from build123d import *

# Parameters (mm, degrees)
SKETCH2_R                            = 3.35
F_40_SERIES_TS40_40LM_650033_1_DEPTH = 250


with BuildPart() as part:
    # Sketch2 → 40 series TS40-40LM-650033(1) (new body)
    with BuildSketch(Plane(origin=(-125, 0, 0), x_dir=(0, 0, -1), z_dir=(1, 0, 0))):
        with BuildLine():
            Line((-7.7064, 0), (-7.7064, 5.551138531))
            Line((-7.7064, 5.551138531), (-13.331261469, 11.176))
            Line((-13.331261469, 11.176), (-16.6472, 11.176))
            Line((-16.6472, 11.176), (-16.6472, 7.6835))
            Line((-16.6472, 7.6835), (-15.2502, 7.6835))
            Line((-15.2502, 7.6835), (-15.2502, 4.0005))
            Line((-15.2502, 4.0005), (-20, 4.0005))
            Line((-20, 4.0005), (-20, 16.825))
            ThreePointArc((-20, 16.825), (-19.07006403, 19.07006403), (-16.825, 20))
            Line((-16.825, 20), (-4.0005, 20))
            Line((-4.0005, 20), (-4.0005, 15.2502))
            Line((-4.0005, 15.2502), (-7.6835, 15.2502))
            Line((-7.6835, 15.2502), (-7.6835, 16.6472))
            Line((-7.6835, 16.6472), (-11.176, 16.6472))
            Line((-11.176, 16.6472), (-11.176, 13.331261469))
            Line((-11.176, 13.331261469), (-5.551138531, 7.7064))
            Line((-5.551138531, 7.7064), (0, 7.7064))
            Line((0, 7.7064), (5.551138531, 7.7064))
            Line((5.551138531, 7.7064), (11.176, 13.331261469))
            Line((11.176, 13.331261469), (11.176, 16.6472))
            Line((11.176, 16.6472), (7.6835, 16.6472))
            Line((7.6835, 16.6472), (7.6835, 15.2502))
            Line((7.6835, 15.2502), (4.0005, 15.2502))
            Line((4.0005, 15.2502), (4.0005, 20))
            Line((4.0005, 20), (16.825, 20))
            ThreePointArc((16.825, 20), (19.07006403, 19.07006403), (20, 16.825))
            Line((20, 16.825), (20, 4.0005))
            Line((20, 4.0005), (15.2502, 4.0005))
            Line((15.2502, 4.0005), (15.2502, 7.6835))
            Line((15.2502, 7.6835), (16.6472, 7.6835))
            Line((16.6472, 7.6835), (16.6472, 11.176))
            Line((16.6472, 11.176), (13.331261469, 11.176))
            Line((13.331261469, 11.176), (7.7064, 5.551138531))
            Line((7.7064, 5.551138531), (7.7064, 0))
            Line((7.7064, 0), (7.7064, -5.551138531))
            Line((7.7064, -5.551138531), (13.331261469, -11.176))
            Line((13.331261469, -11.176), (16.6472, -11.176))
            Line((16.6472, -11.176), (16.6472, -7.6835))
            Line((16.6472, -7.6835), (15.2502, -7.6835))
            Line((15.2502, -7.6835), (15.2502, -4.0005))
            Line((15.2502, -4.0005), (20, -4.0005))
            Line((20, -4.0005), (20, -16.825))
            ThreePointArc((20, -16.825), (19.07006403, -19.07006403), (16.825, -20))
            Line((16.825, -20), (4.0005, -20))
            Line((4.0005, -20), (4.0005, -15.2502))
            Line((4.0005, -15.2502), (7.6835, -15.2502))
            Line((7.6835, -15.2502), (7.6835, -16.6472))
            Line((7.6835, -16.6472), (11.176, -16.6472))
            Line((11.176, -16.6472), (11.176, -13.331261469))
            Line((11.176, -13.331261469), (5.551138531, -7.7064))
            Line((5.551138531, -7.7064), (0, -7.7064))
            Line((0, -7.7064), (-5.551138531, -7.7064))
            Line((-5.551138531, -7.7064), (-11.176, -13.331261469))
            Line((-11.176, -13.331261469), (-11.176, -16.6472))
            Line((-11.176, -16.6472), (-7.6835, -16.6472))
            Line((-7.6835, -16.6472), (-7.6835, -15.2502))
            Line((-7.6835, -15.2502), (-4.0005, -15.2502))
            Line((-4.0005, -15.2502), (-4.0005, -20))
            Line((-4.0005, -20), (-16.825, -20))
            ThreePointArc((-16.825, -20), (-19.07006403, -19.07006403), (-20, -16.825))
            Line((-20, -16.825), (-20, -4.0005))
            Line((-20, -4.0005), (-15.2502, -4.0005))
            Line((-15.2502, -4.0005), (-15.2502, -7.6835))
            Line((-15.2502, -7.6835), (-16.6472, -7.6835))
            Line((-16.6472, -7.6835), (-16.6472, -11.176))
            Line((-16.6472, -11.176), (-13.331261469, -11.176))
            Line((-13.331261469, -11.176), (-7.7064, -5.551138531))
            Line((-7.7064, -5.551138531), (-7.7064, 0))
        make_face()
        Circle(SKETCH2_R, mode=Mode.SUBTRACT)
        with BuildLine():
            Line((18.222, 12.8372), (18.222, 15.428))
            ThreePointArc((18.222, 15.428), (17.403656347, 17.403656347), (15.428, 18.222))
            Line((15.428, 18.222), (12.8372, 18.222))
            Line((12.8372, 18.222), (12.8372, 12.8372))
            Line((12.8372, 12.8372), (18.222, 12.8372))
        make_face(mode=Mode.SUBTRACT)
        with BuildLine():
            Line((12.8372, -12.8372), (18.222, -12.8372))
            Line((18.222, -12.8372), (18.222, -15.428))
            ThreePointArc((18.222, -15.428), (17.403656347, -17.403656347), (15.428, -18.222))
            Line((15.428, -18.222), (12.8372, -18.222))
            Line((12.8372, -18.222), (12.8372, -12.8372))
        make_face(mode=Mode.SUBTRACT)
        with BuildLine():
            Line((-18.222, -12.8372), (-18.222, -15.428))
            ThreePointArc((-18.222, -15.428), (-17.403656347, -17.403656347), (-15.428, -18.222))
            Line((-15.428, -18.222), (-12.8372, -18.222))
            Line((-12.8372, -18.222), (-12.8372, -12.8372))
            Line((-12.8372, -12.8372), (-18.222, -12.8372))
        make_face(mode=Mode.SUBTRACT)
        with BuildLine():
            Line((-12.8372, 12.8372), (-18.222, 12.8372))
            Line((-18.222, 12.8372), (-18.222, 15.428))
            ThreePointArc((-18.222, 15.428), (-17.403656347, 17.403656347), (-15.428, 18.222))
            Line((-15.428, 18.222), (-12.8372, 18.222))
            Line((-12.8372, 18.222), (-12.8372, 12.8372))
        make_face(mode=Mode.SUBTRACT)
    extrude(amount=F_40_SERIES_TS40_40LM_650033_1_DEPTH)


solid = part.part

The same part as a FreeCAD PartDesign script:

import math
import FreeCAD as App
import Part
import Sketcher
from FreeCAD import Vector
Q = App.Units.Quantity

doc = App.newDocument("Part")
body = doc.addObject("PartDesign::Body", "Body")

sketch1 = body.newObject("Sketcher::SketchObject", "Sketch")
sketch1.AttachmentSupport = (doc.getObject("YZ_Plane"), [""])
sketch1.MapMode = "FlatFace"
sketch1.AttachmentOffset = App.Placement(Vector(0, 0, -125), App.Rotation())
sketch1.addGeometry([
    Part.LineSegment(Vector(11.2, 13.3, 0), Vector(5.6, 7.7, 0)),
    Part.LineSegment(Vector(5.6, 7.7, 0), Vector(-5.6, 7.7, 0)),
    Part.LineSegment(Vector(-5.6, 7.7, 0), Vector(-11.2, 13.3, 0)),
    Part.LineSegment(Vector(-11.2, 13.3, 0), Vector(-11.2, 16.6, 0)),
    Part.LineSegment(Vector(-11.2, 16.6, 0), Vector(-7.7, 16.6, 0)),
    Part.LineSegment(Vector(-7.7, 16.6, 0), Vector(-7.7, 15.3, 0)),
    Part.LineSegment(Vector(-7.7, 15.3, 0), Vector(-4, 15.3, 0)),
    Part.LineSegment(Vector(-4, 15.3, 0), Vector(-4, 20, 0)),
    Part.LineSegment(Vector(-4, 20, 0), Vector(-16.8, 20, 0)),
    Part.ArcOfCircle(Part.Circle(Vector(-16.8, 16.8, 0), Vector(0, 0, 1), 3.2), math.radians(90), math.radians(180)),
    Part.LineSegment(Vector(-20, 16.8, 0), Vector(-20, 4, 0)),
    Part.LineSegment(Vector(-20, 4, 0), Vector(-15.3, 4, 0)),
    Part.LineSegment(Vector(-15.3, 4, 0), Vector(-15.3, 7.7, 0)),
    Part.LineSegment(Vector(-15.3, 7.7, 0), Vector(-16.6, 7.7, 0)),
    Part.LineSegment(Vector(-16.6, 7.7, 0), Vector(-16.6, 11.2, 0)),
    Part.LineSegment(Vector(-16.6, 11.2, 0), Vector(-13.3, 11.2, 0)),
    Part.LineSegment(Vector(-13.3, 11.2, 0), Vector(-7.7, 5.6, 0)),
    Part.LineSegment(Vector(-7.7, 5.6, 0), Vector(-7.7, -5.6, 0)),
    Part.LineSegment(Vector(-7.7, -5.6, 0), Vector(-13.3, -11.2, 0)),
    Part.LineSegment(Vector(-13.3, -11.2, 0), Vector(-16.6, -11.2, 0)),
    Part.LineSegment(Vector(-16.6, -11.2, 0), Vector(-16.6, -7.7, 0)),
    Part.LineSegment(Vector(-16.6, -7.7, 0), Vector(-15.3, -7.7, 0)),
    Part.LineSegment(Vector(-15.3, -7.7, 0), Vector(-15.3, -4, 0)),
    Part.LineSegment(Vector(-15.3, -4, 0), Vector(-20, -4, 0)),
    Part.LineSegment(Vector(-20, -4, 0), Vector(-20, -16.8, 0)),
    Part.ArcOfCircle(Part.Circle(Vector(-16.8, -16.8, 0), Vector(0, 0, 1), 3.2), math.radians(-180), math.radians(-90)),
    Part.LineSegment(Vector(-16.8, -20, 0), Vector(-4, -20, 0)),
    Part.LineSegment(Vector(-4, -20, 0), Vector(-4, -15.3, 0)),
    Part.LineSegment(Vector(-4, -15.3, 0), Vector(-7.7, -15.3, 0)),
    Part.LineSegment(Vector(-7.7, -15.3, 0), Vector(-7.7, -16.6, 0)),
    Part.LineSegment(Vector(-7.7, -16.6, 0), Vector(-11.2, -16.6, 0)),
    Part.LineSegment(Vector(-11.2, -16.6, 0), Vector(-11.2, -13.3, 0)),
    Part.LineSegment(Vector(-11.2, -13.3, 0), Vector(-5.6, -7.7, 0)),
    Part.LineSegment(Vector(-5.6, -7.7, 0), Vector(5.6, -7.7, 0)),
    Part.LineSegment(Vector(5.6, -7.7, 0), Vector(11.2, -13.3, 0)),
    Part.LineSegment(Vector(11.2, -13.3, 0), Vector(11.2, -16.6, 0)),
    Part.LineSegment(Vector(11.2, -16.6, 0), Vector(7.7, -16.6, 0)),
    Part.LineSegment(Vector(7.7, -16.6, 0), Vector(7.7, -15.3, 0)),
    Part.LineSegment(Vector(7.7, -15.3, 0), Vector(4, -15.3, 0)),
    Part.LineSegment(Vector(4, -15.3, 0), Vector(4, -20, 0)),
    Part.LineSegment(Vector(4, -20, 0), Vector(16.8, -20, 0)),
    Part.ArcOfCircle(Part.Circle(Vector(16.8, -16.8, 0), Vector(0, 0, 1), 3.2), math.radians(-90), math.radians(0)),
    Part.LineSegment(Vector(20, -16.8, 0), Vector(20, -4, 0)),
    Part.LineSegment(Vector(20, -4, 0), Vector(15.3, -4, 0)),
    Part.LineSegment(Vector(15.3, -4, 0), Vector(15.3, -7.7, 0)),
    Part.LineSegment(Vector(15.3, -7.7, 0), Vector(16.6, -7.7, 0)),
    Part.LineSegment(Vector(16.6, -7.7, 0), Vector(16.6, -11.2, 0)),
    Part.LineSegment(Vector(16.6, -11.2, 0), Vector(13.3, -11.2, 0)),
    Part.LineSegment(Vector(13.3, -11.2, 0), Vector(7.7, -5.6, 0)),
    Part.LineSegment(Vector(7.7, -5.6, 0), Vector(7.7, 5.6, 0)),
    Part.LineSegment(Vector(7.7, 5.6, 0), Vector(13.3, 11.2, 0)),
    Part.LineSegment(Vector(13.3, 11.2, 0), Vector(16.6, 11.2, 0)),
    Part.LineSegment(Vector(16.6, 11.2, 0), Vector(16.6, 7.7, 0)),
    Part.LineSegment(Vector(16.6, 7.7, 0), Vector(15.3, 7.7, 0)),
    Part.LineSegment(Vector(15.3, 7.7, 0), Vector(15.3, 4, 0)),
    Part.LineSegment(Vector(15.3, 4, 0), Vector(20, 4, 0)),
    Part.LineSegment(Vector(20, 4, 0), Vector(20, 16.8, 0)),
    Part.ArcOfCircle(Part.Circle(Vector(16.8, 16.8, 0), Vector(0, 0, 1), 3.2), math.radians(0), math.radians(90)),
    Part.LineSegment(Vector(16.8, 20, 0), Vector(4, 20, 0)),
    Part.LineSegment(Vector(4, 20, 0), Vector(4, 15.3, 0)),
    Part.LineSegment(Vector(4, 15.3, 0), Vector(7.7, 15.3, 0)),
    Part.LineSegment(Vector(7.7, 15.3, 0), Vector(7.7, 16.6, 0)),
    Part.LineSegment(Vector(7.7, 16.6, 0), Vector(11.2, 16.6, 0)),
    Part.LineSegment(Vector(11.2, 16.6, 0), Vector(11.2, 13.3, 0)),
    Part.LineSegment(Vector(-12.8, -12.8, 0), Vector(-12.8, -18.2, 0)),
    Part.LineSegment(Vector(-12.8, -18.2, 0), Vector(-15.4, -18.2, 0)),
    Part.ArcOfCircle(Part.Circle(Vector(-15.4, -15.4, 0), Vector(0, 0, 1), 2.8), math.radians(180), math.radians(270)),
    Part.LineSegment(Vector(-18.2, -15.4, 0), Vector(-18.2, -12.8, 0)),
    Part.LineSegment(Vector(-18.2, -12.8, 0), Vector(-12.8, -12.8, 0)),
    Part.LineSegment(Vector(-12.8, 18.2, 0), Vector(-12.8, 12.8, 0)),
    Part.LineSegment(Vector(-12.8, 12.8, 0), Vector(-18.2, 12.8, 0)),
    Part.LineSegment(Vector(-18.2, 12.8, 0), Vector(-18.2, 15.4, 0)),
    Part.ArcOfCircle(Part.Circle(Vector(-15.4, 15.4, 0), Vector(0, 0, 1), 2.8), math.radians(90), math.radians(180)),
    Part.LineSegment(Vector(-15.4, 18.2, 0), Vector(-12.8, 18.2, 0)),
    Part.LineSegment(Vector(12.8, -18.2, 0), Vector(12.8, -12.8, 0)),
    Part.LineSegment(Vector(12.8, -12.8, 0), Vector(18.2, -12.8, 0)),
    Part.LineSegment(Vector(18.2, -12.8, 0), Vector(18.2, -15.4, 0)),
    Part.ArcOfCircle(Part.Circle(Vector(15.4, -15.4, 0), Vector(0, 0, 1), 2.8), math.radians(-90), math.radians(0)),
    Part.LineSegment(Vector(15.4, -18.2, 0), Vector(12.8, -18.2, 0)),
    Part.Circle(Vector(0, 0, 0), Vector(0, 0, 1), 3.4),
    Part.LineSegment(Vector(12.8, 12.8, 0), Vector(12.8, 18.2, 0)),
    Part.LineSegment(Vector(12.8, 18.2, 0), Vector(15.4, 18.2, 0)),
    Part.ArcOfCircle(Part.Circle(Vector(15.4, 15.4, 0), Vector(0, 0, 1), 2.8), math.radians(0), math.radians(90)),
    Part.LineSegment(Vector(18.2, 15.4, 0), Vector(18.2, 12.8, 0)),
    Part.LineSegment(Vector(18.2, 12.8, 0), Vector(12.8, 12.8, 0)),
], False)
sketch1.addConstraint([
    Sketcher.Constraint("Coincident", 0, 2, 1, 1),
    Sketcher.Constraint("Coincident", 1, 2, 2, 1),
    Sketcher.Constraint("Coincident", 2, 2, 3, 1),
    Sketcher.Constraint("Coincident", 3, 2, 4, 1),
    Sketcher.Constraint("Coincident", 4, 2, 5, 1),
    Sketcher.Constraint("Coincident", 5, 2, 6, 1),
    Sketcher.Constraint("Coincident", 6, 2, 7, 1),
    Sketcher.Constraint("Coincident", 7, 2, 8, 1),
    Sketcher.Constraint("Tangent", 8, 2, 9, 1),
    Sketcher.Constraint("Tangent", 9, 2, 10, 1),
    Sketcher.Constraint("Coincident", 10, 2, 11, 1),
    Sketcher.Constraint("Coincident", 11, 2, 12, 1),
    Sketcher.Constraint("Coincident", 12, 2, 13, 1),
    Sketcher.Constraint("Coincident", 13, 2, 14, 1),
    Sketcher.Constraint("Coincident", 14, 2, 15, 1),
    Sketcher.Constraint("Coincident", 15, 2, 16, 1),
    Sketcher.Constraint("Coincident", 16, 2, 17, 1),
    Sketcher.Constraint("Coincident", 17, 2, 18, 1),
    Sketcher.Constraint("Coincident", 18, 2, 19, 1),
    Sketcher.Constraint("Coincident", 19, 2, 20, 1),
    Sketcher.Constraint("Coincident", 20, 2, 21, 1),
    Sketcher.Constraint("Coincident", 21, 2, 22, 1),
    Sketcher.Constraint("Coincident", 22, 2, 23, 1),
    Sketcher.Constraint("Coincident", 23, 2, 24, 1),
    Sketcher.Constraint("Tangent", 24, 2, 25, 1),
    Sketcher.Constraint("Tangent", 25, 2, 26, 1),
    Sketcher.Constraint("Coincident", 26, 2, 27, 1),
    Sketcher.Constraint("Coincident", 27, 2, 28, 1),
    Sketcher.Constraint("Coincident", 28, 2, 29, 1),
    Sketcher.Constraint("Coincident", 29, 2, 30, 1),
    Sketcher.Constraint("Coincident", 30, 2, 31, 1),
    Sketcher.Constraint("Coincident", 31, 2, 32, 1),
    Sketcher.Constraint("Coincident", 32, 2, 33, 1),
    Sketcher.Constraint("Coincident", 33, 2, 34, 1),
    Sketcher.Constraint("Coincident", 34, 2, 35, 1),
    Sketcher.Constraint("Coincident", 35, 2, 36, 1),
    Sketcher.Constraint("Coincident", 36, 2, 37, 1),
    Sketcher.Constraint("Coincident", 37, 2, 38, 1),
    Sketcher.Constraint("Coincident", 38, 2, 39, 1),
    Sketcher.Constraint("Coincident", 39, 2, 40, 1),
    Sketcher.Constraint("Tangent", 40, 2, 41, 1),
    Sketcher.Constraint("Tangent", 41, 2, 42, 1),
    Sketcher.Constraint("Coincident", 42, 2, 43, 1),
    Sketcher.Constraint("Coincident", 43, 2, 44, 1),
    Sketcher.Constraint("Coincident", 44, 2, 45, 1),
    Sketcher.Constraint("Coincident", 45, 2, 46, 1),
    Sketcher.Constraint("Coincident", 46, 2, 47, 1),
    Sketcher.Constraint("Coincident", 47, 2, 48, 1),
    Sketcher.Constraint("Coincident", 48, 2, 49, 1),
    Sketcher.Constraint("Coincident", 49, 2, 50, 1),
    Sketcher.Constraint("Coincident", 50, 2, 51, 1),
    Sketcher.Constraint("Coincident", 51, 2, 52, 1),
    Sketcher.Constraint("Coincident", 52, 2, 53, 1),
    Sketcher.Constraint("Coincident", 53, 2, 54, 1),
    Sketcher.Constraint("Coincident", 54, 2, 55, 1),
    Sketcher.Constraint("Coincident", 55, 2, 56, 1),
    Sketcher.Constraint("Tangent", 56, 2, 57, 1),
    Sketcher.Constraint("Tangent", 57, 2, 58, 1),
    Sketcher.Constraint("Coincident", 58, 2, 59, 1),
    Sketcher.Constraint("Coincident", 59, 2, 60, 1),
    Sketcher.Constraint("Coincident", 60, 2, 61, 1),
    Sketcher.Constraint("Coincident", 61, 2, 62, 1),
    Sketcher.Constraint("Coincident", 62, 2, 63, 1),
    Sketcher.Constraint("Coincident", 63, 2, 0, 1),
    Sketcher.Constraint("Coincident", 64, 2, 65, 1),
    Sketcher.Constraint("Tangent", 65, 2, 66, 2),
    Sketcher.Constraint("Tangent", 66, 1, 67, 1),
    Sketcher.Constraint("Coincident", 67, 2, 68, 1),
    Sketcher.Constraint("Coincident", 68, 2, 64, 1),
    Sketcher.Constraint("Coincident", 69, 2, 70, 1),
    Sketcher.Constraint("Coincident", 70, 2, 71, 1),
    Sketcher.Constraint("Tangent", 71, 2, 72, 2),
    Sketcher.Constraint("Tangent", 72, 1, 73, 1),
    Sketcher.Constraint("Coincident", 73, 2, 69, 1),
    Sketcher.Constraint("Coincident", 74, 2, 75, 1),
    Sketcher.Constraint("Coincident", 75, 2, 76, 1),
    Sketcher.Constraint("Tangent", 76, 2, 77, 2),
    Sketcher.Constraint("Tangent", 77, 1, 78, 1),
    Sketcher.Constraint("Coincident", 78, 2, 74, 1),
    Sketcher.Constraint("Coincident", 80, 2, 81, 1),
    Sketcher.Constraint("Tangent", 81, 2, 82, 2),
    Sketcher.Constraint("Tangent", 82, 1, 83, 1),
    Sketcher.Constraint("Coincident", 83, 2, 84, 1),
    Sketcher.Constraint("Coincident", 84, 2, 80, 1),
    Sketcher.Constraint("Horizontal", 1),
    Sketcher.Constraint("Vertical", 3),
    Sketcher.Constraint("Horizontal", 4),
    Sketcher.Constraint("Vertical", 5),
    Sketcher.Constraint("Horizontal", 6),
    Sketcher.Constraint("Vertical", 7),
    Sketcher.Constraint("Horizontal", 8),
    Sketcher.Constraint("Vertical", 10),
    Sketcher.Constraint("Horizontal", 11),
    Sketcher.Constraint("Vertical", 12),
    Sketcher.Constraint("Horizontal", 13),
    Sketcher.Constraint("Vertical", 14),
    Sketcher.Constraint("Horizontal", 15),
    Sketcher.Constraint("Vertical", 17),
    Sketcher.Constraint("Horizontal", 19),
    Sketcher.Constraint("Vertical", 20),
    Sketcher.Constraint("Horizontal", 21),
    Sketcher.Constraint("Vertical", 22),
    Sketcher.Constraint("Horizontal", 23),
    Sketcher.Constraint("Vertical", 24),
    Sketcher.Constraint("Horizontal", 26),
    Sketcher.Constraint("Vertical", 27),
    Sketcher.Constraint("Horizontal", 28),
    Sketcher.Constraint("Vertical", 29),
    Sketcher.Constraint("Horizontal", 30),
    Sketcher.Constraint("Vertical", 31),
    Sketcher.Constraint("Horizontal", 33),
    Sketcher.Constraint("Vertical", 35),
    Sketcher.Constraint("Horizontal", 36),
    Sketcher.Constraint("Vertical", 37),
    Sketcher.Constraint("Horizontal", 38),
    Sketcher.Constraint("Vertical", 39),
    Sketcher.Constraint("Horizontal", 40),
    Sketcher.Constraint("Vertical", 42),
    Sketcher.Constraint("Horizontal", 43),
    Sketcher.Constraint("Vertical", 44),
    Sketcher.Constraint("Horizontal", 45),
    Sketcher.Constraint("Vertical", 46),
    Sketcher.Constraint("Horizontal", 47),
    Sketcher.Constraint("Vertical", 49),
    Sketcher.Constraint("Horizontal", 51),
    Sketcher.Constraint("Vertical", 52),
    Sketcher.Constraint("Horizontal", 53),
    Sketcher.Constraint("Vertical", 54),
    Sketcher.Constraint("Horizontal", 55),
    Sketcher.Constraint("Vertical", 56),
    Sketcher.Constraint("Horizontal", 58),
    Sketcher.Constraint("Vertical", 59),
    Sketcher.Constraint("Horizontal", 60),
    Sketcher.Constraint("Vertical", 61),
    Sketcher.Constraint("Horizontal", 62),
    Sketcher.Constraint("Vertical", 63),
    Sketcher.Constraint("Vertical", 64),
    Sketcher.Constraint("Horizontal", 65),
    Sketcher.Constraint("Vertical", 67),
    Sketcher.Constraint("Horizontal", 68),
    Sketcher.Constraint("Vertical", 69),
    Sketcher.Constraint("Horizontal", 70),
    Sketcher.Constraint("Vertical", 71),
    Sketcher.Constraint("Horizontal", 73),
    Sketcher.Constraint("Vertical", 74),
    Sketcher.Constraint("Horizontal", 75),
    Sketcher.Constraint("Vertical", 76),
    Sketcher.Constraint("Horizontal", 78),
    Sketcher.Constraint("Vertical", 80),
    Sketcher.Constraint("Horizontal", 81),
    Sketcher.Constraint("Vertical", 83),
    Sketcher.Constraint("Horizontal", 84),
    Sketcher.Constraint("Coincident", 79, 3, -1, 1),
    Sketcher.Constraint("Equal", 9, 25),
    Sketcher.Constraint("Equal", 25, 41),
    Sketcher.Constraint("Equal", 41, 57),
    Sketcher.Constraint("Equal", 66, 72),
    Sketcher.Constraint("Equal", 72, 77),
    Sketcher.Constraint("Equal", 77, 82),
    Sketcher.Constraint("Symmetric", 9, 3, 41, 3, -1, 1),
    Sketcher.Constraint("Symmetric", 25, 3, 57, 3, -1, 1),
    Sketcher.Constraint("Symmetric", 72, 3, 77, 3, -1, 1),
    Sketcher.Constraint("Symmetric", 66, 3, 82, 3, -1, 1),
    Sketcher.Constraint("Symmetric", 0, 2, 32, 2, -1, 1),
    Sketcher.Constraint("Symmetric", 2, 2, 34, 2, -1, 1),
    Sketcher.Constraint("Symmetric", 4, 2, 36, 2, -1, 1),
    Sketcher.Constraint("Symmetric", 6, 2, 38, 2, -1, 1),
    Sketcher.Constraint("Symmetric", 11, 2, 43, 2, -1, 1),
    Sketcher.Constraint("Symmetric", 13, 2, 45, 2, -1, 1),
    Sketcher.Constraint("Symmetric", 15, 2, 47, 2, -1, 1),
    Sketcher.Constraint("Symmetric", 16, 2, 48, 2, -1, 1),
    Sketcher.Constraint("Symmetric", 18, 2, 50, 2, -1, 1),
    Sketcher.Constraint("Symmetric", 20, 2, 52, 2, -1, 1),
    Sketcher.Constraint("Symmetric", 22, 2, 54, 2, -1, 1),
    Sketcher.Constraint("Symmetric", 27, 2, 59, 2, -1, 1),
    Sketcher.Constraint("Symmetric", 29, 2, 61, 2, -1, 1),
    Sketcher.Constraint("Symmetric", 31, 2, 63, 2, -1, 1),
    Sketcher.Constraint("Symmetric", 69, 2, 74, 2, -1, 1),
    Sketcher.Constraint("Symmetric", 68, 2, 84, 2, -1, 1),
    Sketcher.Constraint("Symmetric", 25, 3, 41, 3, -2),
    Sketcher.Constraint("Symmetric", 66, 3, 77, 3, -2),
    Sketcher.Constraint("Symmetric", 31, 2, 34, 2, -2),
    Sketcher.Constraint("Symmetric", 29, 2, 36, 2, -2),
    Sketcher.Constraint("Symmetric", 27, 2, 38, 2, -2),
    Sketcher.Constraint("Symmetric", 22, 2, 43, 2, -2),
    Sketcher.Constraint("Symmetric", 20, 2, 45, 2, -2),
    Sketcher.Constraint("Symmetric", 18, 2, 47, 2, -2),
    Sketcher.Constraint("Symmetric", 68, 2, 74, 2, -2),
    Sketcher.Constraint("Perpendicular", 0, 2),
    Sketcher.Constraint("Parallel", 2, 16),
    Sketcher.Constraint("Perpendicular", 16, 18),
    Sketcher.Constraint("Perpendicular", 32, 34),
    Sketcher.Constraint("Perpendicular", 48, 50),
    Sketcher.Constraint("Horizontal", 17, 2, 48, 2),
    Sketcher.Constraint("Equal", 51, 3),
    Sketcher.Constraint("Equal", 53, 5),
    Sketcher.Constraint("Equal", 55, 7),
    Sketcher.Constraint("Equal", 58, 10),
    Sketcher.Constraint("Equal", 60, 12),
    Sketcher.Constraint("Equal", 62, 14),
    Sketcher.Constraint("Equal", 33, 17),
    Sketcher.Constraint("Equal", 84, 64),
    Sketcher.Constraint("Equal", 2, 16),
    Sketcher.Constraint("Radius", 66, Q("0.11 in")),
    Sketcher.Constraint("Radius", 9, Q("0.125 in")),
    Sketcher.Constraint("Diameter", 79, 6.7),
    Sketcher.Constraint("DistanceX", 6, 1, 6, 2, Q("0.145 in")),
    Sketcher.Constraint("DistanceX", 11, 1, 11, 2, Q("0.187 in")),
    Sketcher.Constraint("DistanceX", 13, 2, 13, 1, Q("0.055 in")),
    Sketcher.Constraint("DistanceX", 65, 2, 65, 1, Q("0.102 in")),
    Sketcher.Constraint("DistanceX", 2, 2, -1, 1, Q("0.44 in")),
    Sketcher.Constraint("DistanceX", 4, 1, 4, 2, Q("0.1375 in")),
    Sketcher.Constraint("DistanceX", 8, 2, 8, 1, 12.8245),
    Sketcher.Constraint("DistanceX", 15, 1, 15, 2, 3.315939),
    Sketcher.Constraint("DistanceX", 66, 3, -1, 1, 15.428),
    Sketcher.Constraint("DistanceY", 66, 3, -1, 1, 15.428),
    Sketcher.Constraint("DistanceY", -1, 1, 0, 2, 7.7064),
])
pad1 = body.newObject("PartDesign::Pad", "Pad")
pad1.Profile = sketch1
pad1.Length = 250

doc.recompute()
